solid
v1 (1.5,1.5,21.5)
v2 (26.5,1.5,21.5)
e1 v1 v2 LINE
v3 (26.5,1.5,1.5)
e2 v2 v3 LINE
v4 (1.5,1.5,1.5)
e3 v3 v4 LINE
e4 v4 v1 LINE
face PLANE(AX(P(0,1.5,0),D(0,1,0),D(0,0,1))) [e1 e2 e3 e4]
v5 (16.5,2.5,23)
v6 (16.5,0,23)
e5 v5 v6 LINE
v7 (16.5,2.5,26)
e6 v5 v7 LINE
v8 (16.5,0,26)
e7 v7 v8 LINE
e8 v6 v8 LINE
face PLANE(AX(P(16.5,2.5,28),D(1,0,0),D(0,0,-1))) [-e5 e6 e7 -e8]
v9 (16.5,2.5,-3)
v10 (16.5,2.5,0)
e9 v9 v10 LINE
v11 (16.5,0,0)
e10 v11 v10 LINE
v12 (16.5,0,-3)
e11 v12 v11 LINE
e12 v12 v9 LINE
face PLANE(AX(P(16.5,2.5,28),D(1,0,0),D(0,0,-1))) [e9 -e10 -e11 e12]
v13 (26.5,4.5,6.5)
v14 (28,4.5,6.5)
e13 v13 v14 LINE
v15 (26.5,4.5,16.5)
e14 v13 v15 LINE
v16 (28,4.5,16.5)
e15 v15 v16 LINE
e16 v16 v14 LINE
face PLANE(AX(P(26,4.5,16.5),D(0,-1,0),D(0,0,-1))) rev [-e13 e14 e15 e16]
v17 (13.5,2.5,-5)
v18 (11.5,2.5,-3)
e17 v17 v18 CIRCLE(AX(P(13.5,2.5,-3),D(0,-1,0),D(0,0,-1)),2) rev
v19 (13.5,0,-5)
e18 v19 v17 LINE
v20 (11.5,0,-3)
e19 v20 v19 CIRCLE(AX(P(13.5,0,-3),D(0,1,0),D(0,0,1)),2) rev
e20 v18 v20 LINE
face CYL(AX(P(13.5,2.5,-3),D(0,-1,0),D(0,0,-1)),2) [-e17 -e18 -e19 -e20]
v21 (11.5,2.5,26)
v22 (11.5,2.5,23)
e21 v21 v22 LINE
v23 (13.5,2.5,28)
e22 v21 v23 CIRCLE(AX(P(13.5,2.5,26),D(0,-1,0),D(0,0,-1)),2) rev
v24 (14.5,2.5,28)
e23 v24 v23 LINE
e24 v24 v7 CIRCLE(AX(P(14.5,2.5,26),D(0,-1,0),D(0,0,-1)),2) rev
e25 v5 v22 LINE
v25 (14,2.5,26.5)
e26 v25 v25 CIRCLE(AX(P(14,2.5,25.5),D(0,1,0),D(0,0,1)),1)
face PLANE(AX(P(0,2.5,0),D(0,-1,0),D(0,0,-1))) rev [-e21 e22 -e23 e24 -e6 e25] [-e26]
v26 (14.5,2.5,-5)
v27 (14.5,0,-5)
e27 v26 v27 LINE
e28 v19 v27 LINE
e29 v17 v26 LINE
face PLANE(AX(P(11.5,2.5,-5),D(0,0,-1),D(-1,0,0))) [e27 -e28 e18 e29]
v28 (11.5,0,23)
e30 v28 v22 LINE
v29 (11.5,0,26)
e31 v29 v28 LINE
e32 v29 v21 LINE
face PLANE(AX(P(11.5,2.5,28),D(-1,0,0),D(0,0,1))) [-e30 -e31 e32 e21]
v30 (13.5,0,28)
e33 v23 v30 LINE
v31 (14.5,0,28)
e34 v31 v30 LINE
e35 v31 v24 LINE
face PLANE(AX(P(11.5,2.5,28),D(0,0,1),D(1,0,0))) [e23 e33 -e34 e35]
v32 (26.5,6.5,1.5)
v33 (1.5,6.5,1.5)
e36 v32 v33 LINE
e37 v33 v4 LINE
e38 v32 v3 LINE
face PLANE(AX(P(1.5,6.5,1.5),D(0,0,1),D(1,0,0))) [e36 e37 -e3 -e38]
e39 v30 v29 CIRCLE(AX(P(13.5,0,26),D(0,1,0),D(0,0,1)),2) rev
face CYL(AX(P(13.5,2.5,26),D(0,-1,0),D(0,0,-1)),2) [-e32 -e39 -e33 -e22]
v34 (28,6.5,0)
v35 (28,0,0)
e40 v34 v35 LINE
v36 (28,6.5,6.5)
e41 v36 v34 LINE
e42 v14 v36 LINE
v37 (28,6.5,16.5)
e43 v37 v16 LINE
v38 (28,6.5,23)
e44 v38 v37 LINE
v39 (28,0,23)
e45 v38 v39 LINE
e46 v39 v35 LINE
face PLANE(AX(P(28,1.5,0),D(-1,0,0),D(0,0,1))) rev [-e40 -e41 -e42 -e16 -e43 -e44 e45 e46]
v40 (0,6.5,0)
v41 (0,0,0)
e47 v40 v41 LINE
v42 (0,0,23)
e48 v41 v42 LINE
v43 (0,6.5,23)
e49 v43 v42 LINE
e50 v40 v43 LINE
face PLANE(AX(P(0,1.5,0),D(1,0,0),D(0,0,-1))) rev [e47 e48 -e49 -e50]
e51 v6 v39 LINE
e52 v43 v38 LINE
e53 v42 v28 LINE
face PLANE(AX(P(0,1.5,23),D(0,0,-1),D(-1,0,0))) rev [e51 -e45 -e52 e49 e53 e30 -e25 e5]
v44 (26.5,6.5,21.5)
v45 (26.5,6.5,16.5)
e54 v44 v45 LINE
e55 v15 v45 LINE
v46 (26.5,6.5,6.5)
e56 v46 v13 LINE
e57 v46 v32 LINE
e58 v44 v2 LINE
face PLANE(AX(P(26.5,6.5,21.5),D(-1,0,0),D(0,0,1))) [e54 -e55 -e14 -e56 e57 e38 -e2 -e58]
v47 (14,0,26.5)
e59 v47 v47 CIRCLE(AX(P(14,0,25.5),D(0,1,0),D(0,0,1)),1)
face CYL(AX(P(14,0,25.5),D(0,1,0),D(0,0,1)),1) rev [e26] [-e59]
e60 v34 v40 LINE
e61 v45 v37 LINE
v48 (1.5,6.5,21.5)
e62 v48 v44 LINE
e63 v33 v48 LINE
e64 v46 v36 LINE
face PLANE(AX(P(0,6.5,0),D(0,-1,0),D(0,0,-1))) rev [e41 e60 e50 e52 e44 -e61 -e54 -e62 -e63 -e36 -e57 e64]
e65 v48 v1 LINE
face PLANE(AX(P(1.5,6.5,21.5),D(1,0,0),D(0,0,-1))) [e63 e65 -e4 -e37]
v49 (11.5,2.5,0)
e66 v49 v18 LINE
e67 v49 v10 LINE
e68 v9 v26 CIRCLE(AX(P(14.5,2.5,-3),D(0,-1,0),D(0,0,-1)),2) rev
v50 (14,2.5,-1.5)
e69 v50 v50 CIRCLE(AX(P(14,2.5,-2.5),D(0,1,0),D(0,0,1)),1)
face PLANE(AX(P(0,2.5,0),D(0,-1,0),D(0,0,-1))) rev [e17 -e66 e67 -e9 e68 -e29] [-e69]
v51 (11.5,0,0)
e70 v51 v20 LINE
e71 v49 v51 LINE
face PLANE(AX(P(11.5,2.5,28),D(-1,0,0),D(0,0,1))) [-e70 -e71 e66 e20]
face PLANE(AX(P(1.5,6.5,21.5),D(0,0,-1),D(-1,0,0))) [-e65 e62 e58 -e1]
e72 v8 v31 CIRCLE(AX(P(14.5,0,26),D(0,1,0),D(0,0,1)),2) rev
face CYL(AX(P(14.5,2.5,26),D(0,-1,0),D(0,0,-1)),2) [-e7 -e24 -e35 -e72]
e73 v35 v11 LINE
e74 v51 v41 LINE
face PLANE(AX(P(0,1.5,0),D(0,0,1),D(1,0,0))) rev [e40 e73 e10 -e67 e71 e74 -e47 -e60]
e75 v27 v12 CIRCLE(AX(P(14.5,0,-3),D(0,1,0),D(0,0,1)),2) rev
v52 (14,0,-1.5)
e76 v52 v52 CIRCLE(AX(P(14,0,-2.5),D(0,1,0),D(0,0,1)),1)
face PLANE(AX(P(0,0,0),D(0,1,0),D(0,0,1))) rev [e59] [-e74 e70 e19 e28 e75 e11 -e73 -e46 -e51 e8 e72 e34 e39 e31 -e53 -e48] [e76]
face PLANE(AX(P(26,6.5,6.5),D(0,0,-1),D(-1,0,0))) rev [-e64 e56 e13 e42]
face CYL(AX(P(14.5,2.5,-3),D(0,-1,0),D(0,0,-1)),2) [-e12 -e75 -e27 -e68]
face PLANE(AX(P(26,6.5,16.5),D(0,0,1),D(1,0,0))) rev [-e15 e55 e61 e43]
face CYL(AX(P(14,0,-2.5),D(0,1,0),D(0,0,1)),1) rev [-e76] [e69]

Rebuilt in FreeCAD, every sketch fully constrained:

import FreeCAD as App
import Part
import Sketcher
Q = App.Units.Quantity


def edges_at(feature, points):
    """Names of the edges that pass closest to the given points."""
    edges = feature.Shape.Edges
    near = lambda p: min(range(len(edges)), key=lambda i: edges[i].distToShape(Part.Vertex(*p))[0])
    return sorted({f"Edge{near(p) + 1}" for p in points})


def add_polygon(sketch, points):
    """Adds a closed chain of lines whose ends are joined by coincident constraints."""
    first, n = sketch.GeometryCount, len(points)
    for a, b in zip(points, points[1:] + points[:1]):
        sketch.addGeometry(Part.LineSegment(App.Vector(*a, 0), App.Vector(*b, 0)), False)
    for i in range(n):
        sketch.addConstraint(Sketcher.Constraint("Coincident", first + i, 2, first + (i + 1) % n, 1))

doc = App.newDocument("Part")
body = doc.addObject("PartDesign::Body", "Body")

# Sketch on XZ plane
sketch1 = body.newObject("Sketcher::SketchObject", "Sketch")
sketch1.AttachmentSupport = (doc.getObject("XZ_Plane"), [""])
sketch1.MapMode = "FlatFace"
add_polygon(sketch1, [(0, 0), (0, 23), (28, 23), (28, 0)])  # lines 0-3
sketch1.addConstraint(Sketcher.Constraint("Vertical", 0))
sketch1.addConstraint(Sketcher.Constraint("Horizontal", 1))
sketch1.addConstraint(Sketcher.Constraint("Vertical", 2))
sketch1.addConstraint(Sketcher.Constraint("Horizontal", 3))
sketch1.addConstraint(Sketcher.Constraint("Coincident", 3, 2, -1, 1))
sketch1.addConstraint(Sketcher.Constraint("DistanceX", 1, 1, 1, 2, Q("28 mm")))
sketch1.addConstraint(Sketcher.Constraint("DistanceY", 0, 1, 0, 2, Q("23 mm")))
pad1 = body.newObject("PartDesign::Pad", "Pad")
pad1.Profile = sketch1
pad1.Length = 1.5
pad1.Reversed = True

# Sketch on XZ plane
sketch2 = body.newObject("Sketcher::SketchObject", "Sketch001")
sketch2.AttachmentSupport = (doc.getObject("XZ_Plane"), [""])
sketch2.MapMode = "FlatFace"
sketch2.AttachmentOffset = App.Placement(App.Vector(0, 0, -1.5), App.Rotation())
add_polygon(sketch2, [(0, 0), (0, 23), (28, 23), (28, 0)])  # lines 0-3
add_polygon(sketch2, [(26, 22), (2, 22), (2, 2), (26, 2)])  # lines 4-7
sketch2.addConstraint(Sketcher.Constraint("Vertical", 0))
sketch2.addConstraint(Sketcher.Constraint("Horizontal", 1))
sketch2.addConstraint(Sketcher.Constraint("Vertical", 2))
sketch2.addConstraint(Sketcher.Constraint("Horizontal", 3))
sketch2.addConstraint(Sketcher.Constraint("Horizontal", 4))
sketch2.addConstraint(Sketcher.Constraint("Vertical", 5))
sketch2.addConstraint(Sketcher.Constraint("Horizontal", 6))
sketch2.addConstraint(Sketcher.Constraint("Vertical", 7))
sketch2.addConstraint(Sketcher.Constraint("Coincident", 3, 2, -1, 1))
sketch2.addConstraint(Sketcher.Constraint("DistanceX", 1, 1, 1, 2, Q("28 mm")))
sketch2.addConstraint(Sketcher.Constraint("DistanceX", 4, 2, 4, 1, Q("25 mm")))
sketch2.addConstraint(Sketcher.Constraint("DistanceY", 0, 1, 0, 2, Q("23 mm")))
sketch2.addConstraint(Sketcher.Constraint("DistanceY", 5, 2, 5, 1, Q("20 mm")))
sketch2.addConstraint(Sketcher.Constraint("DistanceX", -1, 1, 4, 2, Q("1.5 mm")))
sketch2.addConstraint(Sketcher.Constraint("DistanceY", -1, 1, 4, 2, Q("21.5 mm")))
pad2 = body.newObject("PartDesign::Pad", "Pad001")
pad2.Profile = sketch2
pad2.Length = 5
pad2.Reversed = True

# Sketch on YZ plane
sketch3 = body.newObject("Sketcher::SketchObject", "Sketch002")
sketch3.AttachmentSupport = (doc.getObject("YZ_Plane"), [""])
sketch3.MapMode = "FlatFace"
sketch3.AttachmentOffset = App.Placement(App.Vector(0, 0, 28), App.Rotation())
add_polygon(sketch3, [(6.5, 16.5), (4.5, 16.5), (4.5, 6.5), (6.5, 6.5)])  # lines 0-3
sketch3.addConstraint(Sketcher.Constraint("Horizontal", 0))
sketch3.addConstraint(Sketcher.Constraint("Vertical", 1))
sketch3.addConstraint(Sketcher.Constraint("Horizontal", 2))
sketch3.addConstraint(Sketcher.Constraint("Vertical", 3))
sketch3.addConstraint(Sketcher.Constraint("DistanceX", 0, 2, 0, 1, Q("2 mm")))
sketch3.addConstraint(Sketcher.Constraint("DistanceY", 1, 2, 1, 1, Q("10 mm")))
sketch3.addConstraint(Sketcher.Constraint("DistanceX", -1, 1, 0, 2, Q("4.5 mm")))
sketch3.addConstraint(Sketcher.Constraint("DistanceY", -1, 1, 0, 2, Q("16.5 mm")))
pocket1 = body.newObject("PartDesign::Pocket", "Pocket")
pocket1.Profile = sketch3
pocket1.Length = 2

# Sketch on XZ plane
sketch4 = body.newObject("Sketcher::SketchObject", "Sketch003")
sketch4.AttachmentSupport = (doc.getObject("XZ_Plane"), [""])
sketch4.MapMode = "FlatFace"
add_polygon(sketch4, [(12, 28), (12, -5), (16, -5), (16, 28)])  # lines 0-3
sketch4.addConstraint(Sketcher.Constraint("Vertical", 0))
sketch4.addConstraint(Sketcher.Constraint("Horizontal", 1))
sketch4.addConstraint(Sketcher.Constraint("Vertical", 2))
sketch4.addConstraint(Sketcher.Constraint("Horizontal", 3))
sketch4.addConstraint(Sketcher.Constraint("DistanceX", 1, 1, 1, 2, Q("5 mm")))
sketch4.addConstraint(Sketcher.Constraint("DistanceY", 0, 2, 0, 1, Q("33 mm")))
sketch4.addConstraint(Sketcher.Constraint("DistanceY", 0, 2, -1, 1, Q("5 mm")))
sketch4.addConstraint(Sketcher.Constraint("DistanceX", -1, 1, 0, 2, Q("11.5 mm")))
pad3 = body.newObject("PartDesign::Pad", "Pad002")
pad3.Profile = sketch4
pad3.Length = 2.5
pad3.Reversed = True

# Sketch on XZ plane
sketch5 = body.newObject("Sketcher::SketchObject", "Sketch004")
sketch5.AttachmentSupport = (doc.getObject("XZ_Plane"), [""])
sketch5.MapMode = "FlatFace"
sketch5.AttachmentOffset = App.Placement(App.Vector(0, 0, -2.5), App.Rotation())
add_polygon(sketch5, [(12, 2), (12, 22), (16, 22), (16, 2)])  # lines 0-3
sketch5.addConstraint(Sketcher.Constraint("Vertical", 0))
sketch5.addConstraint(Sketcher.Constraint("Horizontal", 1))
sketch5.addConstraint(Sketcher.Constraint("Vertical", 2))
sketch5.addConstraint(Sketcher.Constraint("Horizontal", 3))
sketch5.addConstraint(Sketcher.Constraint("DistanceX", 1, 1, 1, 2, Q("5 mm")))
sketch5.addConstraint(Sketcher.Constraint("DistanceY", 0, 1, 0, 2, Q("20 mm")))
sketch5.addConstraint(Sketcher.Constraint("DistanceX", -1, 1, 0, 2, Q("11.5 mm")))
sketch5.addConstraint(Sketcher.Constraint("DistanceY", -1, 1, 0, 2, Q("21.5 mm")))
pocket2 = body.newObject("PartDesign::Pocket", "Pocket001")
pocket2.Profile = sketch5
pocket2.Length = 1
pocket2.Reversed = True

# Sketch on XZ plane
sketch6 = body.newObject("Sketcher::SketchObject", "Sketch005")
sketch6.AttachmentSupport = (doc.getObject("XZ_Plane"), [""])
sketch6.MapMode = "FlatFace"
sketch6.AttachmentOffset = App.Placement(App.Vector(0, 0, -2.5), App.Rotation())
sketch6.addGeometry(Part.Circle(App.Vector(14, -2.5, 0), App.Vector(0, 0, 1), 1), False)
sketch6.addGeometry(Part.Circle(App.Vector(14, 25.5, 0), App.Vector(0, 0, 1), 1), False)
sketch6.addConstraint(Sketcher.Constraint("Equal", 0, 1))
sketch6.addConstraint(Sketcher.Constraint("Vertical", 0, 3, 1, 3))
sketch6.addConstraint(Sketcher.Constraint("Diameter", 0, Q("2 mm")))
sketch6.addConstraint(Sketcher.Constraint("DistanceX", -1, 1, 0, 3, Q("14 mm")))
sketch6.addConstraint(Sketcher.Constraint("DistanceY", 0, 3, 1, 3, Q("28 mm")))
sketch6.addConstraint(Sketcher.Constraint("DistanceY", 0, 3, -1, 1, Q("2.5 mm")))
pocket3 = body.newObject("PartDesign::Pocket", "Pocket002")
pocket3.Profile = sketch6
pocket3.Type = "ThroughAll"
pocket3.Reversed = True
doc.recompute()

fillet = body.newObject("PartDesign::Fillet", "Fillet")
fillet.Base = (pocket3, edges_at(pocket3, [
    (11.5, 1.25, -5),
    (16.5, 1.25, 28),
    (11.5, 1.25, 28),
    (16.5, 1.25, -5),
]))
fillet.Radius = 2

doc.recompute()
